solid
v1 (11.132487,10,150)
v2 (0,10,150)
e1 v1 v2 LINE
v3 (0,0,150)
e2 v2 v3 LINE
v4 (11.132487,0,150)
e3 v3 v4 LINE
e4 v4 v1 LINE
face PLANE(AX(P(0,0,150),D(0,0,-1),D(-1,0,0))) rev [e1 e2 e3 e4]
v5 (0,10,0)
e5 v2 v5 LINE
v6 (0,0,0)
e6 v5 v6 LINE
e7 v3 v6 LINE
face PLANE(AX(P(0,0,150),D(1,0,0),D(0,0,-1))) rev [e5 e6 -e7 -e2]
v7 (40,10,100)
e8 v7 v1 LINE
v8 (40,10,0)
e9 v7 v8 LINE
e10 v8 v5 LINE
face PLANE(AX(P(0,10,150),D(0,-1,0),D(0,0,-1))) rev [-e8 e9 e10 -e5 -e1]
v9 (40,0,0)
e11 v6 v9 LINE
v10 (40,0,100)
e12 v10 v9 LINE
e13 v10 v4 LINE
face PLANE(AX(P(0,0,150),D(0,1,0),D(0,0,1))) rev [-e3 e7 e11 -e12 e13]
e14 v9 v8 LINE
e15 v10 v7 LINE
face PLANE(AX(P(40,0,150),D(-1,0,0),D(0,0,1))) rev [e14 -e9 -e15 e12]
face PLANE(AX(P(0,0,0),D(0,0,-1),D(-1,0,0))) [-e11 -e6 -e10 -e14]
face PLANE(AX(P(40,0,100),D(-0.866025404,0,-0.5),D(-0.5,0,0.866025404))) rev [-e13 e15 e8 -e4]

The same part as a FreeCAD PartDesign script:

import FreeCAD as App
import Part
import Sketcher
from FreeCAD import Vector
Q = App.Units.Quantity

doc = App.newDocument("Part")
params = doc.addObject("Spreadsheet::Sheet", "Params")
for row, (alias, value) in enumerate([
    ("sketch1_width", "40 mm"),
    ("sketch1_height", "10 mm"),
    ("pad1_length", "150 mm"),
    ("sketch2_height", "50 mm"),
], start=1):
    params.set(f"A{row}", alias)
    params.set(f"B{row}", "=" + value)
    params.setAlias(f"B{row}", alias)

body = doc.addObject("PartDesign::Body", "Body")

# Sketch on XY plane
sketch1 = body.newObject("Sketcher::SketchObject", "Sketch")
sketch1.AttachmentSupport = (doc.getObject("XY_Plane"), [""])
sketch1.MapMode = "FlatFace"
sketch1.addGeometry([
    Part.LineSegment(Vector(0, 10, 0), Vector(0, 0, 0)),
    Part.LineSegment(Vector(0, 0, 0), Vector(40, 0, 0)),
    Part.LineSegment(Vector(40, 0, 0), Vector(40, 10, 0)),
    Part.LineSegment(Vector(40, 10, 0), Vector(0, 10, 0)),
], False)
sketch1.addConstraint([
    Sketcher.Constraint("Coincident", 0, 2, 1, 1),
    Sketcher.Constraint("Coincident", 1, 2, 2, 1),
    Sketcher.Constraint("Coincident", 2, 2, 3, 1),
    Sketcher.Constraint("Coincident", 3, 2, 0, 1),
    Sketcher.Constraint("Vertical", 0),
    Sketcher.Constraint("Horizontal", 1),
    Sketcher.Constraint("Vertical", 2),
    Sketcher.Constraint("Horizontal", 3),
    Sketcher.Constraint("Coincident", 0, 2, -1, 1),
    Sketcher.Constraint("DistanceX", 1, 1, 1, 2, Q("40 mm")),
    Sketcher.Constraint("DistanceY", 0, 2, 0, 1, Q("10 mm")),
])
sketch1.setExpression("Constraints[9]", "Params.sketch1_width")
sketch1.setExpression("Constraints[10]", "Params.sketch1_height")
pad1 = body.newObject("PartDesign::Pad", "Pad")
pad1.Profile = sketch1
pad1.setExpression("Length", "Params.pad1_length")

# Sketch on XZ plane
sketch2 = body.newObject("Sketcher::SketchObject", "Sketch001")
sketch2.AttachmentSupport = (doc.getObject("XZ_Plane"), [""])
sketch2.MapMode = "FlatFace"
sketch2.AttachmentOffset = App.Placement(Vector(0, 0, -10), App.Rotation())
sketch2.addGeometry([
    Part.LineSegment(Vector(40, 150, 0), Vector(40, 100, 0)),
    Part.LineSegment(Vector(40, 100, 0), Vector(11.132487, 150, 0)),
    Part.LineSegment(Vector(11.132487, 150, 0), Vector(40, 150, 0)),
], False)
sketch2.addConstraint([
    Sketcher.Constraint("Coincident", 0, 2, 1, 1),
    Sketcher.Constraint("Coincident", 1, 2, 2, 1),
    Sketcher.Constraint("Coincident", 2, 2, 0, 1),
    Sketcher.Constraint("Vertical", 0),
    Sketcher.Constraint("Horizontal", 2),
    Sketcher.Constraint("DistanceY", 0, 2, 0, 1, Q("50 mm")),
    Sketcher.Constraint("Angle", 1, Q("120 deg")),
    Sketcher.Constraint("DistanceX", -1, 1, 0, 2, Q("40 mm")),
    Sketcher.Constraint("DistanceY", -1, 1, 0, 2, Q("100 mm")),
])
sketch2.setExpression("Constraints[5]", "Params.sketch2_height")
pocket1 = body.newObject("PartDesign::Pocket", "Pocket")
pocket1.Profile = sketch2
pocket1.Type = "ThroughAll"
pocket1.Reversed = True

doc.recompute()
